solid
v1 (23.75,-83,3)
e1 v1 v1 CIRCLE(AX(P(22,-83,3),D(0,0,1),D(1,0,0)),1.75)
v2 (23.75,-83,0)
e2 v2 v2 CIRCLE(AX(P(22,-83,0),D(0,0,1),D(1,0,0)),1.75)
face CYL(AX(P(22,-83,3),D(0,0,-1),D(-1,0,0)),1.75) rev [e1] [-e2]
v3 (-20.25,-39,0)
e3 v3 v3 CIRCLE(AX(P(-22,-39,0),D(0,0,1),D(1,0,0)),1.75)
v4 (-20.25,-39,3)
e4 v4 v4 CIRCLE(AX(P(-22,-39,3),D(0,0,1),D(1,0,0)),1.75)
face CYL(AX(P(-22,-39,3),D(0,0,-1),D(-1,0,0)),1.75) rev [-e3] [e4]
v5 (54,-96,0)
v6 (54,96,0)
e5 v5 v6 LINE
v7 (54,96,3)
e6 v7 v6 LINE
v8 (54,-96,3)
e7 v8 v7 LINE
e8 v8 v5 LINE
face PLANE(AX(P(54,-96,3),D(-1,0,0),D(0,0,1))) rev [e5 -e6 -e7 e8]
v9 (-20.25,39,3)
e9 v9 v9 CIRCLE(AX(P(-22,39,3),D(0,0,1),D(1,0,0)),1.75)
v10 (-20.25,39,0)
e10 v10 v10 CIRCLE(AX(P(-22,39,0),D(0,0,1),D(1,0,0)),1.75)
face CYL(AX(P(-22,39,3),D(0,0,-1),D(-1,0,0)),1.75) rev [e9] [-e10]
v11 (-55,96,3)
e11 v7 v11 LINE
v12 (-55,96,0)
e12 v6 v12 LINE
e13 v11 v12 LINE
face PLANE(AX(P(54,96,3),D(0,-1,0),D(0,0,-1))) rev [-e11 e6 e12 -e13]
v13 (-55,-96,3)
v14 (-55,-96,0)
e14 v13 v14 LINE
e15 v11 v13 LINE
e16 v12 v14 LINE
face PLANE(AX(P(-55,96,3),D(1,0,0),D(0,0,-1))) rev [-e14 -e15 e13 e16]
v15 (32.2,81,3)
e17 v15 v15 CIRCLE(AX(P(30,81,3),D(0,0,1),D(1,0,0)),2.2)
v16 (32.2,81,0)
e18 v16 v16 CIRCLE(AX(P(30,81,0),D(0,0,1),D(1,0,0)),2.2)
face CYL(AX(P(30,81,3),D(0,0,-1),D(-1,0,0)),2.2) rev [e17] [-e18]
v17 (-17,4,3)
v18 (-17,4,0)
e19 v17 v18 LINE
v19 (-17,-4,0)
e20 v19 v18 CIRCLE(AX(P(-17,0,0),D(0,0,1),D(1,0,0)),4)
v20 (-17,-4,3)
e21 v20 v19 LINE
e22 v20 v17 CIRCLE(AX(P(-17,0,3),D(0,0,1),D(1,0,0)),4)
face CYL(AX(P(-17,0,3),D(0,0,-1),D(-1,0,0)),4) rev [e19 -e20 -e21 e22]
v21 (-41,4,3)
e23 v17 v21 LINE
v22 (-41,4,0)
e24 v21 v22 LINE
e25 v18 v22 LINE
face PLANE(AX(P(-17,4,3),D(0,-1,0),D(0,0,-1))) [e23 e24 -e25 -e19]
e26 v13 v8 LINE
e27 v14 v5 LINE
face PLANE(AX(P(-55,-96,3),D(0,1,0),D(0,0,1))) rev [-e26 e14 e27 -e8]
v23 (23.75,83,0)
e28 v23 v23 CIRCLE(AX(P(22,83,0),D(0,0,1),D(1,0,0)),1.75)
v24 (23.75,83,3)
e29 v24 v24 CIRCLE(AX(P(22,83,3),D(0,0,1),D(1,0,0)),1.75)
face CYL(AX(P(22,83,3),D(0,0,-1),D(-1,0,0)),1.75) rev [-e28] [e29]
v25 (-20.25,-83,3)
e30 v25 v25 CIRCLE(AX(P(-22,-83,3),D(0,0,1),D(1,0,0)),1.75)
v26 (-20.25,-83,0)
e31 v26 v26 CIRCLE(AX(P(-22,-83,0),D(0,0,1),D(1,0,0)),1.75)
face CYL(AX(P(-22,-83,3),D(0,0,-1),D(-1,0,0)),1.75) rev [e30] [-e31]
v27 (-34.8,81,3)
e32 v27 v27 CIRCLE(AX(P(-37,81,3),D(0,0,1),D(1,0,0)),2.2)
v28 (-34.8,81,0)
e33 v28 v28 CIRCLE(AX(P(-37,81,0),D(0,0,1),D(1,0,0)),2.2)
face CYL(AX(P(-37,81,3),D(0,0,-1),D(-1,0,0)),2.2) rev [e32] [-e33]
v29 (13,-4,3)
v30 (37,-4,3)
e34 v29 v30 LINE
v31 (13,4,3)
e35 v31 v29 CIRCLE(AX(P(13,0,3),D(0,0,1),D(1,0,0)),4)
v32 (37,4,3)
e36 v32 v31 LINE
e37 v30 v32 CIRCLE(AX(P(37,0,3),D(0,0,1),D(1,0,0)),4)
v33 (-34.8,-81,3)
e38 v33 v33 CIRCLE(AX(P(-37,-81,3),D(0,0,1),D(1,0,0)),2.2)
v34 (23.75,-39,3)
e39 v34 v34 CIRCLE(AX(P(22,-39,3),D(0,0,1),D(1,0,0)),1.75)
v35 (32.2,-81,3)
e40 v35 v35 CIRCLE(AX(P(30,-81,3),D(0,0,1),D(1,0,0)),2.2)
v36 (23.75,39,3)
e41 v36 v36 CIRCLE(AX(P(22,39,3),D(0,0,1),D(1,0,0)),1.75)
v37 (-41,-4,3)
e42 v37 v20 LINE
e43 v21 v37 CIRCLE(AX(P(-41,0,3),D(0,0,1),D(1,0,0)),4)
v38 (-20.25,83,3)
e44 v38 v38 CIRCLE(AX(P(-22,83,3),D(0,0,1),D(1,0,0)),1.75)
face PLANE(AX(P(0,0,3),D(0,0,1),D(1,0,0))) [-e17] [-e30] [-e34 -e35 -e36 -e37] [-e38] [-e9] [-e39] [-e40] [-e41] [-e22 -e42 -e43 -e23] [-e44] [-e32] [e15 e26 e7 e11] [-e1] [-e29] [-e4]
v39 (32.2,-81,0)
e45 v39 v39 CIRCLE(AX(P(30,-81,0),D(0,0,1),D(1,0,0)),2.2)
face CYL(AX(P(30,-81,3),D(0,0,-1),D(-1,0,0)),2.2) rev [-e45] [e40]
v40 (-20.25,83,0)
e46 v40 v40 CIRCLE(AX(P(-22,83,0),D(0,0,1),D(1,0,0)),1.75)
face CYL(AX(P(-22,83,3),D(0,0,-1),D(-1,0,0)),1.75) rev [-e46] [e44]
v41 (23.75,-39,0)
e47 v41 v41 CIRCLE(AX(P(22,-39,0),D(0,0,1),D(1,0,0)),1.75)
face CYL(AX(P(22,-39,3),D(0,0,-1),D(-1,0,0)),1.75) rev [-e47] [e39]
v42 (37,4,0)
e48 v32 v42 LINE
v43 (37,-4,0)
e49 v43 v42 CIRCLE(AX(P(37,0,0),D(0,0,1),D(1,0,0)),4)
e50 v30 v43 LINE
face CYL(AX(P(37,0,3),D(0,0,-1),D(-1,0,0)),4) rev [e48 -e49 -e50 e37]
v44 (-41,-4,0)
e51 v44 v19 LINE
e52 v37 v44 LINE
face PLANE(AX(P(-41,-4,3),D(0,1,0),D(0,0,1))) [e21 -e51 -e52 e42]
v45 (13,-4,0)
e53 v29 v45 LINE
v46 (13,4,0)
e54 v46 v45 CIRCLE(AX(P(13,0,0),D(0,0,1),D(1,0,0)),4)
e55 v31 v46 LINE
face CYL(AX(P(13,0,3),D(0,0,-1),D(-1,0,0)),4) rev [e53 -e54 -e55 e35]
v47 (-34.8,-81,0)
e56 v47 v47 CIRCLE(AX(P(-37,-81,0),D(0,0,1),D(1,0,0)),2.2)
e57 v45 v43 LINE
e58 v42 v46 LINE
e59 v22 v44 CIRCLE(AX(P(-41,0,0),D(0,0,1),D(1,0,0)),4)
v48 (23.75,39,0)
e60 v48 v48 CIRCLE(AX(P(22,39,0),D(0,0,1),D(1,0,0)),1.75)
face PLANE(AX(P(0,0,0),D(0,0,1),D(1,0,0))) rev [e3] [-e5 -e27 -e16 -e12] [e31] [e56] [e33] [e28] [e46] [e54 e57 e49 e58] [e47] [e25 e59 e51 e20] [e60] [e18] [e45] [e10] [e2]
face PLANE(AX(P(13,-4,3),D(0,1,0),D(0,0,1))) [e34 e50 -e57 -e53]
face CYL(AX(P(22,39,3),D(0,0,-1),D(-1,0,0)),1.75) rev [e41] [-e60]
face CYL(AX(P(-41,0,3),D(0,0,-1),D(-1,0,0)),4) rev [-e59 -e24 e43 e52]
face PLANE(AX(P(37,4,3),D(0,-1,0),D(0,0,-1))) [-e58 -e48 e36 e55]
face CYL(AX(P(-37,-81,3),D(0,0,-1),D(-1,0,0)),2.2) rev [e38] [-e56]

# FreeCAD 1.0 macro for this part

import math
import FreeCAD as App
import Part
import Sketcher
from FreeCAD import Vector


def add_polygon(sketch, points):
    """Adds a closed chain of lines whose ends are joined by coincident constraints."""
    first, n = sketch.GeometryCount, len(points)
    for a, b in zip(points, points[1:] + points[:1]):
        sketch.addGeometry(Part.LineSegment(App.Vector(*a, 0), App.Vector(*b, 0)), False)
    for i in range(n):
        sketch.addConstraint(Sketcher.Constraint("Coincident", first + i, 2, first + (i + 1) % n, 1))

doc = App.newDocument("Part")
body = doc.addObject("PartDesign::Body", "Body")

# Sketch on XY plane
sketch1 = body.newObject("Sketcher::SketchObject", "Sketch")
sketch1.AttachmentSupport = (doc.getObject("XY_Plane"), [""])
sketch1.MapMode = "FlatFace"
add_polygon(sketch1, [(-55, 96), (-55, -96), (54, -96), (54, 96)])  # lines 0-3
sketch1.addGeometry(Part.Circle(Vector(-37, -81, 0), Vector(0, 0, 1), 2.2), False)  # 4
sketch1.addGeometry(Part.Circle(Vector(-22, -83, 0), Vector(0, 0, 1), 1.8), False)  # 5
sketch1.addGeometry(Part.Circle(Vector(-22, -39, 0), Vector(0, 0, 1), 1.8), False)  # 6
sketch1.addGeometry(Part.Circle(Vector(22, -83, 0), Vector(0, 0, 1), 1.8), False)  # 7
sketch1.addGeometry(Part.Circle(Vector(30, -81, 0), Vector(0, 0, 1), 2.2), False)  # 8
sketch1.addGeometry(Part.Circle(Vector(22, -39, 0), Vector(0, 0, 1), 1.8), False)  # 9
sketch1.addGeometry(Part.LineSegment(Vector(-17, -4, 0), Vector(-41, -4, 0)), False)  # 10
sketch1.addGeometry(Part.ArcOfCircle(Part.Circle(Vector(-41, 0, 0), Vector(0, 0, 1), 4), math.radians(90), math.radians(270)), False)  # 11
sketch1.addGeometry(Part.LineSegment(Vector(-41, 4, 0), Vector(-17, 4, 0)), False)  # 12
sketch1.addGeometry(Part.ArcOfCircle(Part.Circle(Vector(-17, 0, 0), Vector(0, 0, 1), 4), math.radians(-90), math.radians(90)), False)  # 13
sketch1.addGeometry(Part.Circle(Vector(-22, 39, 0), Vector(0, 0, 1), 1.8), False)  # 14
sketch1.addGeometry(Part.Circle(Vector(-37, 81, 0), Vector(0, 0, 1), 2.2), False)  # 15
sketch1.addGeometry(Part.Circle(Vector(-22, 83, 0), Vector(0, 0, 1), 1.8), False)  # 16
sketch1.addGeometry(Part.LineSegment(Vector(37, -4, 0), Vector(13, -4, 0)), False)  # 17
sketch1.addGeometry(Part.ArcOfCircle(Part.Circle(Vector(13, 0, 0), Vector(0, 0, 1), 4), math.radians(90), math.radians(270)), False)  # 18
sketch1.addGeometry(Part.LineSegment(Vector(13, 4, 0), Vector(37, 4, 0)), False)  # 19
sketch1.addGeometry(Part.ArcOfCircle(Part.Circle(Vector(37, 0, 0), Vector(0, 0, 1), 4), math.radians(-90), math.radians(90)), False)  # 20
sketch1.addGeometry(Part.Circle(Vector(22, 39, 0), Vector(0, 0, 1), 1.8), False)  # 21
sketch1.addGeometry(Part.Circle(Vector(22, 83, 0), Vector(0, 0, 1), 1.8), False)  # 22
sketch1.addGeometry(Part.Circle(Vector(30, 81, 0), Vector(0, 0, 1), 2.2), False)  # 23
sketch1.addConstraint([
    Sketcher.Constraint("Tangent", 10, 2, 11, 2),
    Sketcher.Constraint("Tangent", 11, 1, 12, 1),
    Sketcher.Constraint("Tangent", 12, 2, 13, 2),
    Sketcher.Constraint("Tangent", 13, 1, 10, 1),
    Sketcher.Constraint("Tangent", 17, 2, 18, 2),
    Sketcher.Constraint("Tangent", 18, 1, 19, 1),
    Sketcher.Constraint("Tangent", 19, 2, 20, 2),
    Sketcher.Constraint("Tangent", 20, 1, 17, 1),
    Sketcher.Constraint("Vertical", 0),
    Sketcher.Constraint("Horizontal", 1),
    Sketcher.Constraint("Vertical", 2),
    Sketcher.Constraint("Horizontal", 3),
    Sketcher.Constraint("Horizontal", 10),
    Sketcher.Constraint("Horizontal", 12),
    Sketcher.Constraint("Horizontal", 17),
    Sketcher.Constraint("Horizontal", 19),
    Sketcher.Constraint("Equal", 5, 6),
    Sketcher.Constraint("Equal", 6, 7),
    Sketcher.Constraint("Equal", 4, 8),
    Sketcher.Constraint("Equal", 7, 9),
    Sketcher.Constraint("Equal", 9, 14),
    Sketcher.Constraint("Equal", 8, 15),
    Sketcher.Constraint("Equal", 14, 16),
    Sketcher.Constraint("Equal", 13, 18),
    Sketcher.Constraint("Equal", 16, 21),
    Sketcher.Constraint("Equal", 21, 22),
    Sketcher.Constraint("Equal", 15, 23),
    Sketcher.Constraint("Symmetric", 9, 3, 14, 3, -1, 1),
    Sketcher.Constraint("Symmetric", 7, 3, 16, 3, -1, 1),
    Sketcher.Constraint("Symmetric", 6, 3, 21, 3, -1, 1),
    Sketcher.Constraint("Symmetric", 5, 3, 22, 3, -1, 1),
    Sketcher.Constraint("Symmetric", 5, 3, 7, 3, -2),
    Sketcher.Constraint("Symmetric", 6, 3, 9, 3, -2),
    Sketcher.Constraint("Symmetric", 4, 3, 15, 3, -1),
    Sketcher.Constraint("Symmetric", 8, 3, 23, 3, -1),
    Sketcher.Constraint("PointOnObject", 11, 3, -1),
    Sketcher.Constraint("PointOnObject", 18, 3, -1),
    Sketcher.Constraint("Horizontal", 4, 3, 8, 3),
    Sketcher.Constraint("Vertical", 5, 3, 6, 3),
    Sketcher.Constraint("Equal", 12, 17),
    Sketcher.Constraint("Radius", 11, 4.0),
    Sketcher.Constraint("Diameter", 4, 4.4),
    Sketcher.Constraint("Diameter", 5, 3.5),
    Sketcher.Constraint("DistanceX", 1, 1, 1, 2, 109.0),
    Sketcher.Constraint("DistanceX", 10, 2, 10, 1, 24.0),
    Sketcher.Constraint("DistanceY", 0, 2, 0, 1, 192.0),
    Sketcher.Constraint("DistanceX", 4, 3, -1, 1, 37.0),
    Sketcher.Constraint("DistanceY", 4, 3, -1, 1, 81.0),
    Sketcher.Constraint("DistanceX", 5, 3, -1, 1, 22.0),
    Sketcher.Constraint("DistanceY", 5, 3, -1, 1, 83.0),
    Sketcher.Constraint("DistanceY", 6, 3, -1, 1, 39.0),
    Sketcher.Constraint("DistanceX", -1, 1, 8, 3, 30.0),
    Sketcher.Constraint("DistanceX", 11, 3, -1, 1, 41.0),
    Sketcher.Constraint("DistanceX", -1, 1, 18, 3, 13.0),
    Sketcher.Constraint("DistanceX", 0, 2, -1, 1, 55.0),
    Sketcher.Constraint("DistanceY", 0, 2, -1, 1, 96.0),
])
pad1 = body.newObject("PartDesign::Pad", "Pad")
pad1.Profile = sketch1
pad1.Length = 3

doc.recompute()
